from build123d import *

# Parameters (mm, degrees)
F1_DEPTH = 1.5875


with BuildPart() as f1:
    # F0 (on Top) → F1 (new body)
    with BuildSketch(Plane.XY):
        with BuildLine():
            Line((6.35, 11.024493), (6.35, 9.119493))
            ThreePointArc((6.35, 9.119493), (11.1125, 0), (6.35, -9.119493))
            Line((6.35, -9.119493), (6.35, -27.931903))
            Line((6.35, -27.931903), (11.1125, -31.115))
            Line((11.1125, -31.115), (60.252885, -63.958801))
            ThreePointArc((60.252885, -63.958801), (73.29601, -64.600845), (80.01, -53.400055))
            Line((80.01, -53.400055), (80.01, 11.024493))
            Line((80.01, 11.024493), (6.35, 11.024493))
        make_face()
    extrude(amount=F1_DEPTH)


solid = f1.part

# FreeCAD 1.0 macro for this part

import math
import FreeCAD as App
import Part
import Sketcher
Q = App.Units.Quantity

doc = App.newDocument("Part")
body = doc.addObject("PartDesign::Body", "Body")

# Sketch on XY plane
sketch1 = body.newObject("Sketcher::SketchObject", "Sketch")
sketch1.AttachmentSupport = (doc.getObject("XY_Plane"), [""])
sketch1.MapMode = "FlatFace"
sketch1.addGeometry(Part.LineSegment(App.Vector(6.3, 11, 0), App.Vector(6.3, 9.1, 0)), False)
sketch1.addGeometry(Part.ArcOfCircle(Part.Circle(App.Vector(0, 0, 0), App.Vector(0, 0, 1), 11.1), math.radians(-55), math.radians(55)), False)
sketch1.addGeometry(Part.LineSegment(App.Vector(6.3, -9.1, 0), App.Vector(6.3, -27.9, 0)), False)
sketch1.addGeometry(Part.LineSegment(App.Vector(6.3, -27.9, 0), App.Vector(11.1, -31.1, 0)), False)
sketch1.addGeometry(Part.LineSegment(App.Vector(11.1, -31.1, 0), App.Vector(60.3, -64, 0)), False)
sketch1.addGeometry(Part.ArcOfCircle(Part.Circle(App.Vector(67.3, -53.4, 0), App.Vector(0, 0, 1), 12.7), math.radians(-124), math.radians(0)), False)
sketch1.addGeometry(Part.LineSegment(App.Vector(80, -53.4, 0), App.Vector(80, 11, 0)), False)
sketch1.addGeometry(Part.LineSegment(App.Vector(80, 11, 0), App.Vector(6.3, 11, 0)), False)
sketch1.addConstraint(Sketcher.Constraint("Coincident", 0, 2, 1, 2))
sketch1.addConstraint(Sketcher.Constraint("Coincident", 1, 1, 2, 1))
sketch1.addConstraint(Sketcher.Constraint("Coincident", 2, 2, 3, 1))
sketch1.addConstraint(Sketcher.Constraint("Coincident", 3, 2, 4, 1))
sketch1.addConstraint(Sketcher.Constraint("Tangent", 4, 2, 5, 1))
sketch1.addConstraint(Sketcher.Constraint("Tangent", 5, 2, 6, 1))
sketch1.addConstraint(Sketcher.Constraint("Coincident", 6, 2, 7, 1))
sketch1.addConstraint(Sketcher.Constraint("Coincident", 7, 2, 0, 1))
sketch1.addConstraint(Sketcher.Constraint("Vertical", 0))
sketch1.addConstraint(Sketcher.Constraint("Vertical", 2))
sketch1.addConstraint(Sketcher.Constraint("Vertical", 6))
sketch1.addConstraint(Sketcher.Constraint("Horizontal", 7))
sketch1.addConstraint(Sketcher.Constraint("Coincident", 1, 3, -1, 1))
sketch1.addConstraint(Sketcher.Constraint("Parallel", 3, 4))
sketch1.addConstraint(Sketcher.Constraint("Vertical", 0, 2, 1, 1))
sketch1.addConstraint(Sketcher.Constraint("Radius", 5, Q("0.5 in")))
sketch1.addConstraint(Sketcher.Constraint("DistanceX", 7, 2, 7, 1, Q("2.9 in")))
sketch1.addConstraint(Sketcher.Constraint("Radius", 1, Q("0.4375 in")))
sketch1.addConstraint(Sketcher.Constraint("DistanceY", 0, 2, 0, 1, Q("0.075 in")))
sketch1.addConstraint(Sketcher.Constraint("DistanceX", -1, 1, 5, 3, Q("2.65 in")))
sketch1.addConstraint(Sketcher.Constraint("DistanceX", -1, 1, 3, 2, Q("0.4375 in")))
sketch1.addConstraint(Sketcher.Constraint("DistanceY", 3, 2, -1, 1, Q("1.225 in")))
sketch1.addConstraint(Sketcher.Constraint("DistanceY", 2, 2, 2, 1, Q("18.81241 mm")))
pad1 = body.newObject("PartDesign::Pad", "Pad")
pad1.Profile = sketch1
pad1.Length = Q("0.0625 in")

doc.recompute()
